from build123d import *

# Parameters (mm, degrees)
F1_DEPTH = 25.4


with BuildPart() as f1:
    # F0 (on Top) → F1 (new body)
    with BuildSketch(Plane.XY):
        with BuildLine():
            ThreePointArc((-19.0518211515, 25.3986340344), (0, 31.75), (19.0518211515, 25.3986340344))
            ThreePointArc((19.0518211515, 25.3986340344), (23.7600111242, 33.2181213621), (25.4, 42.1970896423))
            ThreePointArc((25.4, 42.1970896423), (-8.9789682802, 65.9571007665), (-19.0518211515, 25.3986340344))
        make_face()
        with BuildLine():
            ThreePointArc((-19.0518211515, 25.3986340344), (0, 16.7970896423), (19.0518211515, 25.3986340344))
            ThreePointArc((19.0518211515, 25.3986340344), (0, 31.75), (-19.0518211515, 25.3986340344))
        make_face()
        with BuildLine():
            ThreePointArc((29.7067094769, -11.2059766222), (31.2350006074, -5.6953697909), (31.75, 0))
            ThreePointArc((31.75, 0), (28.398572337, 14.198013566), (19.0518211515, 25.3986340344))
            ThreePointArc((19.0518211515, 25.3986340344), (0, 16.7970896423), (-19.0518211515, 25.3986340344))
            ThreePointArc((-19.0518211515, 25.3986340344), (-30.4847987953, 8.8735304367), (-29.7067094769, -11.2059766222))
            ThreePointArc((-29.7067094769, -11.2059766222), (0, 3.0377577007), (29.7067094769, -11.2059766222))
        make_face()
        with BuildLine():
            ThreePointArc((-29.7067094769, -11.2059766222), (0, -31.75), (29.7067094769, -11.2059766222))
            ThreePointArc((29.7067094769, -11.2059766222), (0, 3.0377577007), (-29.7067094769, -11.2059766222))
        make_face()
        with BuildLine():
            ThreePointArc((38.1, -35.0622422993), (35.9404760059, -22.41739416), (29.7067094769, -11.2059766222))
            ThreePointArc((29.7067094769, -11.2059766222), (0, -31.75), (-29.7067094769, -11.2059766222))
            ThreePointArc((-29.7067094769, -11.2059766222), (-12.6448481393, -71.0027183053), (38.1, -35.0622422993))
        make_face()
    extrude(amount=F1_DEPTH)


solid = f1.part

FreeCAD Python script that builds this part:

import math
import FreeCAD as App
import Part
import Sketcher

V = App.Vector
Q = App.Units.Quantity

doc = App.newDocument("Part")
params = doc.addObject("Spreadsheet::Sheet", "Params")
for row, (alias, value) in enumerate([
    ("sketch1_radius", "1 in"),
    ("sketch1_radius2", "1.5 in"),
    ("sketch1_radius3", "1.25 in"),
    ("pad1_length", "1 in"),
], start=1):
    params.set(f"A{row}", alias)
    params.set(f"B{row}", "=" + value)
    params.setAlias(f"B{row}", alias)

body = doc.addObject("PartDesign::Body", "Body")

sketch1 = body.newObject("Sketcher::SketchObject", "Sketch")
sketch1.AttachmentSupport = (doc.getObject("XY_Plane"), [""])
sketch1.MapMode = "FlatFace"
sketch1.addGeometry([
    Part.ArcOfCircle(Part.Circle(V(0, 42, 0), V(0, 0, 1), 25), math.radians(-41), math.radians(0)),
    Part.ArcOfCircle(Part.Circle(V(0, 42, 0), V(0, 0, 1), 25), math.radians(0), math.radians(221)),
    Part.ArcOfCircle(Part.Circle(V(0, 0, 0), V(0, 0, 1), 32), math.radians(127), math.radians(201)),
    Part.ArcOfCircle(Part.Circle(V(0, -35, 0), V(0, 0, 1), 38), math.radians(141), math.radians(360)),
    Part.ArcOfCircle(Part.Circle(V(0, -35, 0), V(0, 0, 1), 38), math.radians(0), math.radians(39)),
    Part.ArcOfCircle(Part.Circle(V(0, 0, 0), V(0, 0, 1), 32), math.radians(-21), math.radians(0)),
    Part.ArcOfCircle(Part.Circle(V(0, 0, 0), V(0, 0, 1), 32), math.radians(0), math.radians(53)),
], False)
sketch1.addConstraint([
    Sketcher.Constraint("Tangent", 0, 2, 1, 1),
    Sketcher.Constraint("Coincident", 1, 2, 2, 1),
    Sketcher.Constraint("Coincident", 2, 2, 3, 1),
    Sketcher.Constraint("Tangent", 3, 2, 4, 1),
    Sketcher.Constraint("Coincident", 4, 2, 5, 1),
    Sketcher.Constraint("Tangent", 5, 2, 6, 1),
    Sketcher.Constraint("Coincident", 6, 2, 0, 1),
    Sketcher.Constraint("Coincident", 2, 3, -1, 1),
    Sketcher.Constraint("Coincident", 5, 3, -1, 1),
    Sketcher.Constraint("Equal", 0, 1),
    Sketcher.Constraint("Equal", 3, 4),
    Sketcher.Constraint("Equal", 2, 5),
    Sketcher.Constraint("Equal", 5, 6),
    Sketcher.Constraint("PointOnObject", 0, 3, -2),
    Sketcher.Constraint("PointOnObject", 3, 3, -2),
    Sketcher.Constraint("PointOnObject", 5, 2, -1),
    Sketcher.Constraint("Horizontal", 1, 3, 0, 2),
    Sketcher.Constraint("Horizontal", 4, 3, 3, 2),
    Sketcher.Constraint("Radius", 0, Q("1 in")),
    Sketcher.Constraint("Radius", 3, Q("1.5 in")),
    Sketcher.Constraint("Radius", 2, Q("1.25 in")),
    Sketcher.Constraint("DistanceY", -1, 1, 0, 3, 42.19709),
    Sketcher.Constraint("DistanceX", 2, 2, -1, 1, 29.706709),
])
sketch1.setExpression("Constraints[18]", "Params.sketch1_radius")
sketch1.setExpression("Constraints[19]", "Params.sketch1_radius2")
sketch1.setExpression("Constraints[20]", "Params.sketch1_radius3")
pad1 = body.newObject("PartDesign::Pad", "Pad")
pad1.Profile = sketch1
pad1.setExpression("Length", "Params.pad1_length")

doc.recompute()
